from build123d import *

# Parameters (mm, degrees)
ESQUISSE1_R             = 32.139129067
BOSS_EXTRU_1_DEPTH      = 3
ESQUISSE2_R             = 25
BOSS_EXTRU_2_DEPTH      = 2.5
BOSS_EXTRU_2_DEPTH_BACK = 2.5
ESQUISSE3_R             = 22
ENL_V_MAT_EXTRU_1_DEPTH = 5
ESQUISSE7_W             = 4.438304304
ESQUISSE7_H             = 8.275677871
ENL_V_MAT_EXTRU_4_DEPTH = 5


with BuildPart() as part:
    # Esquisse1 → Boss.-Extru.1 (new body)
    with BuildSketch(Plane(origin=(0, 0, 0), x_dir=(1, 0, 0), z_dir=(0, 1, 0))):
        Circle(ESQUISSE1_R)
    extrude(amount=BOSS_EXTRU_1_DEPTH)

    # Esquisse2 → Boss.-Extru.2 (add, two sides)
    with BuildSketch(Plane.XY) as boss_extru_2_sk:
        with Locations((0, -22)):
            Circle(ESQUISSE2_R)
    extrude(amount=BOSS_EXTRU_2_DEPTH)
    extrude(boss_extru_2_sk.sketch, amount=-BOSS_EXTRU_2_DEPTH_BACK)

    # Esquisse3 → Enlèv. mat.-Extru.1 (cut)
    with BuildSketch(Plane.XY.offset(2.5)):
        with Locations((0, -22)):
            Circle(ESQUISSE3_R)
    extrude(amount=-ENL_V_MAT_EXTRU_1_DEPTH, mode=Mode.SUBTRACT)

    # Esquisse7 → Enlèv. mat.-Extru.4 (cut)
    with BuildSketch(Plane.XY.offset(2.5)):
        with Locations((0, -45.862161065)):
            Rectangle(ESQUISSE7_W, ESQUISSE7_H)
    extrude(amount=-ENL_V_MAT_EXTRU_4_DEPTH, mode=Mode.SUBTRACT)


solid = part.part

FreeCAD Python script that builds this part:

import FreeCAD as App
import Part
import Sketcher
from FreeCAD import Vector

doc = App.newDocument("Part")
body = doc.addObject("PartDesign::Body", "Body")

sketch1 = doc.addObject("Sketcher::SketchObject", "Sketch")
body.addObject(sketch1)
sketch1.AttachmentSupport = (doc.XZ_Plane, [""])
sketch1.MapMode = "FlatFace"
sketch1.addGeometry(Part.Circle(Vector(0, 0, 0), Vector(0, 0, 1), 32), False)
sketch1.addConstraint([
    Sketcher.Constraint("Coincident", 0, 3, -1, 1),
    Sketcher.Constraint("Diameter", 0, 64.278258),
])
pad1 = doc.addObject("PartDesign::Pad", "Pad")
body.addObject(pad1)
pad1.Profile = sketch1
pad1.Length = 3
pad1.Reversed = True

sketch2 = doc.addObject("Sketcher::SketchObject", "Sketch001")
body.addObject(sketch2)
sketch2.AttachmentSupport = (doc.XY_Plane, [""])
sketch2.MapMode = "FlatFace"
sketch2.addGeometry(Part.Circle(Vector(0, -22, 0), Vector(0, 0, 1), 25), False)
sketch2.addConstraint([
    Sketcher.Constraint("PointOnObject", 0, 3, -2),
    Sketcher.Constraint("Diameter", 0, 50.0),
    Sketcher.Constraint("DistanceY", 0, 3, -1, 1, 22.0),
])
pad2 = doc.addObject("PartDesign::Pad", "Pad001")
body.addObject(pad2)
pad2.Profile = sketch2
pad2.Type = "TwoLengths"
pad2.Length = 2.5
pad2.Length2 = 2.5

sketch3 = doc.addObject("Sketcher::SketchObject", "Sketch002")
body.addObject(sketch3)
sketch3.AttachmentSupport = (doc.XY_Plane, [""])
sketch3.MapMode = "FlatFace"
sketch3.AttachmentOffset = App.Placement(Vector(0, 0, 2.5), App.Rotation())
sketch3.addGeometry(Part.Circle(Vector(0, -22, 0), Vector(0, 0, 1), 22), False)
sketch3.addConstraint([
    Sketcher.Constraint("PointOnObject", 0, 3, -2),
    Sketcher.Constraint("Diameter", 0, 44.0),
    Sketcher.Constraint("DistanceY", 0, 3, -1, 1, 22.0),
])
pocket1 = doc.addObject("PartDesign::Pocket", "Pocket")
body.addObject(pocket1)
pocket1.Profile = sketch3
pocket1.Length = 5

sketch4 = doc.addObject("Sketcher::SketchObject", "Sketch003")
body.addObject(sketch4)
sketch4.AttachmentSupport = (doc.XY_Plane, [""])
sketch4.MapMode = "FlatFace"
sketch4.AttachmentOffset = App.Placement(Vector(0, 0, 2.5), App.Rotation())
sketch4.addGeometry([
    Part.LineSegment(Vector(-2.2, -41.7, 0), Vector(-2.2, -50, 0)),
    Part.LineSegment(Vector(-2.2, -50, 0), Vector(2.2, -50, 0)),
    Part.LineSegment(Vector(2.2, -50, 0), Vector(2.2, -41.7, 0)),
    Part.LineSegment(Vector(2.2, -41.7, 0), Vector(-2.2, -41.7, 0)),
], False)
sketch4.addConstraint([
    Sketcher.Constraint("Coincident", 0, 2, 1, 1),
    Sketcher.Constraint("Coincident", 1, 2, 2, 1),
    Sketcher.Constraint("Coincident", 2, 2, 3, 1),
    Sketcher.Constraint("Coincident", 3, 2, 0, 1),
    Sketcher.Constraint("Vertical", 0),
    Sketcher.Constraint("Horizontal", 1),
    Sketcher.Constraint("Vertical", 2),
    Sketcher.Constraint("Horizontal", 3),
    Sketcher.Constraint("DistanceY", 0, 2, -1, 1, 50.0),
    Sketcher.Constraint("DistanceX", 1, 1, 1, 2, 4.438304),
    Sketcher.Constraint("DistanceY", 0, 2, 0, 1, 8.275678),
    Sketcher.Constraint("DistanceX", 0, 2, -1, 1, 2.219152),
])
pocket2 = doc.addObject("PartDesign::Pocket", "Pocket001")
body.addObject(pocket2)
pocket2.Profile = sketch4
pocket2.Length = 5

doc.recompute()
